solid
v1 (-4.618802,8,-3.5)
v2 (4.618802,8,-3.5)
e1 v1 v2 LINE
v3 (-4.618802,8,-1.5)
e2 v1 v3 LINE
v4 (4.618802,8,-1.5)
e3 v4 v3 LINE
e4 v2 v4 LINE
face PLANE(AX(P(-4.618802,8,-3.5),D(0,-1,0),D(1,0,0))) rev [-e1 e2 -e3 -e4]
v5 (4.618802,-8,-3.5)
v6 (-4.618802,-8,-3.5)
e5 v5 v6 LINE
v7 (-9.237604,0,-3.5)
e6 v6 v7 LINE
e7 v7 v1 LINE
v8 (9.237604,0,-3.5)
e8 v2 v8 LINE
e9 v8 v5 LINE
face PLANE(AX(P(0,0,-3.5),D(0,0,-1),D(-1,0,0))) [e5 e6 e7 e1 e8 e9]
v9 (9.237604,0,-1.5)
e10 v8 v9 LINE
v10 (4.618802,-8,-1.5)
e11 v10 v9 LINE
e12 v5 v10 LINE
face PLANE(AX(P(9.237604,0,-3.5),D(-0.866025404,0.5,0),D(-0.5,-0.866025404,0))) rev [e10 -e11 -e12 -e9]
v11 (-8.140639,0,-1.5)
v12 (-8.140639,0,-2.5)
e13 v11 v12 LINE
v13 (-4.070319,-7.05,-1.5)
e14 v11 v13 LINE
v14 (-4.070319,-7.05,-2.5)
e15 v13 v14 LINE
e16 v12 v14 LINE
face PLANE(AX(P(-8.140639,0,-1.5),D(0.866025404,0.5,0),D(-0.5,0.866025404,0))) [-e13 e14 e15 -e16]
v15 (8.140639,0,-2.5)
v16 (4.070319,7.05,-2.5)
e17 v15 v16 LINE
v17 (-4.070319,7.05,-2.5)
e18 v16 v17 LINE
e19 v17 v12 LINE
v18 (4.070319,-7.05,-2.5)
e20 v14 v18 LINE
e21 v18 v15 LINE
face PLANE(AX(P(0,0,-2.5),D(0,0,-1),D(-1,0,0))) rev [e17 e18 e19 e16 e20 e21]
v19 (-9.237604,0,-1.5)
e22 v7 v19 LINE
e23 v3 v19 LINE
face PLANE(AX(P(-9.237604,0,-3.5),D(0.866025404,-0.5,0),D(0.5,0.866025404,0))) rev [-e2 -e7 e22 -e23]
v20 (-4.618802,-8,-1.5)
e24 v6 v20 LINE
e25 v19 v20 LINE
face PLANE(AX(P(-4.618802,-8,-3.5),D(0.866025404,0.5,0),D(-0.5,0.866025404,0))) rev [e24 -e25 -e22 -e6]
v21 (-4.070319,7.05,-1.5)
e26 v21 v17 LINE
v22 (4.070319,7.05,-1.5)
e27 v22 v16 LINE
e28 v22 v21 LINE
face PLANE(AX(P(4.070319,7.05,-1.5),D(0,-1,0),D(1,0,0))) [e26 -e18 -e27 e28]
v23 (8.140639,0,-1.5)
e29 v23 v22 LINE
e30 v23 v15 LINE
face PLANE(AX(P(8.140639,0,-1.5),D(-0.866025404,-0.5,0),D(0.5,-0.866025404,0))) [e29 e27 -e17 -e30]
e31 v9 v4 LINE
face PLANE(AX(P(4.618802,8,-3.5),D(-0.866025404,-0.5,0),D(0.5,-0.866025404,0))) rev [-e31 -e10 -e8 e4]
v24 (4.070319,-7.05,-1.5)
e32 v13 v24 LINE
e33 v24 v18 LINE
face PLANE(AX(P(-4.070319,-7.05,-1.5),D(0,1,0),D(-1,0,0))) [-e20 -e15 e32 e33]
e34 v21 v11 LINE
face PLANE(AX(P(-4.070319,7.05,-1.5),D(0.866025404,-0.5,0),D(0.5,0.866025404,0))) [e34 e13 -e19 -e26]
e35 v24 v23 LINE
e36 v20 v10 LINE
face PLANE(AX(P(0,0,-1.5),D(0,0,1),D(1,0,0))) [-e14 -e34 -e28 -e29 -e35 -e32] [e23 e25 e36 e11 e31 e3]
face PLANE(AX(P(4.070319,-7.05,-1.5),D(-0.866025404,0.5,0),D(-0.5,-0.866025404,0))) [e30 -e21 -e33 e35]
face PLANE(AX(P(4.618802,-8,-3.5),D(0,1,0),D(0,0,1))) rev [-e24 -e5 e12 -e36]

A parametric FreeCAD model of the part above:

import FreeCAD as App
import Part
import Sketcher
from FreeCAD import Vector
Q = App.Units.Quantity


def add_polygon(sketch, points):
    """Adds a closed chain of lines whose ends are joined by coincident constraints."""
    first, n = sketch.GeometryCount, len(points)
    for a, b in zip(points, points[1:] + points[:1]):
        sketch.addGeometry(Part.LineSegment(App.Vector(*a, 0), App.Vector(*b, 0)), False)
    for i in range(n):
        sketch.addConstraint(Sketcher.Constraint("Coincident", first + i, 2, first + (i + 1) % n, 1))

doc = App.newDocument("Part")
body = doc.addObject("PartDesign::Body", "Body")

# Sketch on XY plane
sketch1 = body.newObject("Sketcher::SketchObject", "Sketch")
sketch1.AttachmentSupport = (doc.getObject("XY_Plane"), [""])
sketch1.MapMode = "FlatFace"
add_polygon(sketch1, [(8.082904, 0), (4.041452, 7), (-4.041452, 7), (-8.082904, 0), (-4.041452, -7), (4.041452, -7)])  # lines 0-5
add_polygon(sketch1, [(2.944486, 5.1), (5.888973, 0), (2.944486, -5.1), (-2.944486, -5.1), (-5.888973, 0), (-2.944486, 5.1)])  # lines 6-11
sketch1.addConstraint([
    Sketcher.Constraint("Horizontal", 1),
    Sketcher.Constraint("Horizontal", 4),
    Sketcher.Constraint("Horizontal", 8),
    Sketcher.Constraint("Horizontal", 11),
    Sketcher.Constraint("Symmetric", 0, 2, 3, 2, -1, 1),
    Sketcher.Constraint("Symmetric", 2, 2, 5, 2, -1, 1),
    Sketcher.Constraint("Symmetric", 6, 2, 9, 2, -1, 1),
    Sketcher.Constraint("Symmetric", 7, 2, 10, 2, -1, 1),
    Sketcher.Constraint("PointOnObject", 2, 2, -1),
    Sketcher.Constraint("PointOnObject", 6, 2, -1),
    Sketcher.Constraint("Parallel", 2, 5),
    Sketcher.Constraint("Parallel", 3, 6),
    Sketcher.Constraint("Parallel", 5, 7),
    Sketcher.Constraint("Parallel", 6, 9),
    Sketcher.Constraint("Vertical", 1, 2, 3, 2),
    Sketcher.Constraint("Angle", 0, Q("120 deg")),
    Sketcher.Constraint("DistanceY", -1, 1, 0, 2, Q("7 mm")),
    Sketcher.Constraint("DistanceY", 7, 2, -1, 1, Q("5.1 mm")),
    Sketcher.Constraint("DistanceX", 1, 2, 1, 1, Q("8.082904 mm")),
    Sketcher.Constraint("DistanceX", 8, 2, 8, 1, Q("5.888973 mm")),
])
pad1 = body.newObject("PartDesign::Pad", "Pad")
pad1.Profile = sketch1
pad1.Type = "TwoLengths"
pad1.Length = 1
pad1.Length2 = 2.5

# Sketch on XY plane
sketch2 = body.newObject("Sketcher::SketchObject", "Sketch001")
sketch2.AttachmentSupport = (doc.getObject("XY_Plane"), [""])
sketch2.MapMode = "FlatFace"
add_polygon(sketch2, [(5.888973, 0), (2.944486, 5.1), (-2.944486, 5.1), (-5.888973, 0), (-2.944486, -5.1), (2.944486, -5.1)])  # lines 0-5
add_polygon(sketch2, [(2.771281, 4.8), (5.542563, 0), (2.771281, -4.8), (-2.771281, -4.8), (-5.542563, 0), (-2.771281, 4.8)])  # lines 6-11
sketch2.addConstraint([
    Sketcher.Constraint("Horizontal", 1),
    Sketcher.Constraint("Horizontal", 4),
    Sketcher.Constraint("Horizontal", 8),
    Sketcher.Constraint("Horizontal", 11),
    Sketcher.Constraint("Symmetric", 0, 2, 3, 2, -1, 1),
    Sketcher.Constraint("Symmetric", 2, 2, 5, 2, -1, 1),
    Sketcher.Constraint("Symmetric", 6, 2, 9, 2, -1, 1),
    Sketcher.Constraint("Symmetric", 7, 2, 10, 2, -1, 1),
    Sketcher.Constraint("PointOnObject", 2, 2, -1),
    Sketcher.Constraint("PointOnObject", 6, 2, -1),
    Sketcher.Constraint("Parallel", 2, 5),
    Sketcher.Constraint("Parallel", 3, 6),
    Sketcher.Constraint("Parallel", 5, 7),
    Sketcher.Constraint("Parallel", 6, 9),
    Sketcher.Constraint("Vertical", 1, 2, 3, 2),
    Sketcher.Constraint("Angle", 0, Q("120 deg")),
    Sketcher.Constraint("DistanceY", -1, 1, 0, 2, Q("5.1 mm")),
    Sketcher.Constraint("DistanceY", 7, 2, -1, 1, Q("4.8 mm")),
    Sketcher.Constraint("DistanceX", 1, 2, 1, 1, Q("5.888973 mm")),
    Sketcher.Constraint("DistanceX", 8, 2, 8, 1, Q("5.542563 mm")),
])
pad2 = body.newObject("PartDesign::Pad", "Pad001")
pad2.Profile = sketch2
pad2.Length = 2.5
pad2.Reversed = True

# Sketch on XY plane
sketch3 = body.newObject("Sketcher::SketchObject", "Sketch002")
sketch3.AttachmentSupport = (doc.getObject("XY_Plane"), [""])
sketch3.MapMode = "FlatFace"
sketch3.AttachmentOffset = App.Placement(Vector(0, 0, -2.5), App.Rotation())
add_polygon(sketch3, [(-9.237604, 0), (-4.618802, 8), (4.618802, 8), (9.237604, 0), (4.618802, -8), (-4.618802, -8)])  # lines 0-5
sketch3.addConstraint([
    Sketcher.Constraint("Horizontal", 1),
    Sketcher.Constraint("Horizontal", 4),
    Sketcher.Constraint("Symmetric", 0, 2, 3, 2, -1, 1),
    Sketcher.Constraint("Symmetric", 2, 2, 5, 2, -1, 1),
    Sketcher.Constraint("PointOnObject", 2, 2, -1),
    Sketcher.Constraint("Parallel", 2, 5),
    Sketcher.Constraint("Vertical", 1, 2, 3, 2),
    Sketcher.Constraint("Angle", 0, Q("60 deg")),
    Sketcher.Constraint("DistanceY", -1, 1, 0, 2, Q("8 mm")),
    Sketcher.Constraint("DistanceX", 1, 1, 1, 2, Q("9.237604 mm")),
])
pad3 = body.newObject("PartDesign::Pad", "Pad002")
pad3.Profile = sketch3
pad3.Length = 1
pad3.Reversed = True

# Sketch on XY plane
sketch4 = body.newObject("Sketcher::SketchObject", "Sketch003")
sketch4.AttachmentSupport = (doc.getObject("XY_Plane"), [""])
sketch4.MapMode = "FlatFace"
sketch4.AttachmentOffset = App.Placement(Vector(0, 0, -2.5), App.Rotation())
add_polygon(sketch4, [(-4.618802, 8), (-9.237604, 0), (-4.618802, -8), (4.618802, -8), (9.237604, 0), (4.618802, 8)])  # lines 0-5
add_polygon(sketch4, [(-8.140639, 0), (-4.070319, 7.05), (4.070319, 7.05), (8.140639, 0), (4.070319, -7.05), (-4.070319, -7.05)])  # lines 6-11
sketch4.addConstraint([
    Sketcher.Constraint("Horizontal", 2),
    Sketcher.Constraint("Horizontal", 5),
    Sketcher.Constraint("Horizontal", 7),
    Sketcher.Constraint("Horizontal", 10),
    Sketcher.Constraint("Symmetric", 0, 2, 3, 2, -1, 1),
    Sketcher.Constraint("Symmetric", 1, 2, 4, 2, -1, 1),
    Sketcher.Constraint("Symmetric", 6, 2, 9, 2, -1, 1),
    Sketcher.Constraint("Symmetric", 8, 2, 11, 2, -1, 1),
    Sketcher.Constraint("PointOnObject", 0, 2, -1),
    Sketcher.Constraint("PointOnObject", 8, 2, -1),
    Sketcher.Constraint("Parallel", 0, 3),
    Sketcher.Constraint("Parallel", 3, 6),
    Sketcher.Constraint("Parallel", 4, 8),
    Sketcher.Constraint("Parallel", 8, 11),
    Sketcher.Constraint("Vertical", 2, 2, 4, 2),
    Sketcher.Constraint("Angle", 0, Q("-120 deg")),
    Sketcher.Constraint("DistanceY", 1, 2, -1, 1, Q("8 mm")),
    Sketcher.Constraint("DistanceY", 9, 2, 7, 2, Q("14.1 mm")),
    Sketcher.Constraint("DistanceX", 7, 1, 7, 2, Q("8.140639 mm")),
    Sketcher.Constraint("DistanceX", 2, 1, 2, 2, Q("9.237604 mm")),
])
pad4 = body.newObject("PartDesign::Pad", "Pad003")
pad4.Profile = sketch4
pad4.Length = 1

# Sketch on XY plane
sketch5 = body.newObject("Sketcher::SketchObject", "Sketch004")
sketch5.AttachmentSupport = (doc.getObject("XY_Plane"), [""])
sketch5.MapMode = "FlatFace"
sketch5.AttachmentOffset = App.Placement(Vector(0, 0, -2.5), App.Rotation())
add_polygon(sketch5, [(4.041452, -7), (8.082904, 0), (4.041452, 7), (-4.041452, 7), (-8.082904, 0), (-4.041452, -7)])  # lines 0-5
add_polygon(sketch5, [(2.771281, 4.8), (5.542563, 0), (2.771281, -4.8), (-2.771281, -4.8), (-5.542563, 0), (-2.771281, 4.8)])  # lines 6-11
sketch5.addConstraint([
    Sketcher.Constraint("Horizontal", 2),
    Sketcher.Constraint("Horizontal", 5),
    Sketcher.Constraint("Horizontal", 8),
    Sketcher.Constraint("Horizontal", 11),
    Sketcher.Constraint("Symmetric", 0, 2, 3, 2, -1, 1),
    Sketcher.Constraint("Symmetric", 1, 2, 4, 2, -1, 1),
    Sketcher.Constraint("Symmetric", 6, 2, 9, 2, -1, 1),
    Sketcher.Constraint("Symmetric", 7, 2, 10, 2, -1, 1),
    Sketcher.Constraint("PointOnObject", 0, 2, -1),
    Sketcher.Constraint("PointOnObject", 6, 2, -1),
    Sketcher.Constraint("Parallel", 0, 3),
    Sketcher.Constraint("Parallel", 4, 6),
    Sketcher.Constraint("Parallel", 3, 7),
    Sketcher.Constraint("Parallel", 6, 9),
    Sketcher.Constraint("Vertical", 2, 2, 4, 2),
    Sketcher.Constraint("Angle", 0, Q("60 deg")),
    Sketcher.Constraint("DistanceY", -1, 1, 1, 2, Q("7 mm")),
    Sketcher.Constraint("DistanceY", 7, 2, -1, 1, Q("4.8 mm")),
    Sketcher.Constraint("DistanceX", 2, 2, 2, 1, Q("8.082904 mm")),
    Sketcher.Constraint("DistanceX", 8, 2, 8, 1, Q("5.542563 mm")),
])
pocket1 = body.newObject("PartDesign::Pocket", "Pocket")
pocket1.Profile = sketch5
pocket1.Type = "ThroughAll"
pocket1.Reversed = True

doc.recompute()
